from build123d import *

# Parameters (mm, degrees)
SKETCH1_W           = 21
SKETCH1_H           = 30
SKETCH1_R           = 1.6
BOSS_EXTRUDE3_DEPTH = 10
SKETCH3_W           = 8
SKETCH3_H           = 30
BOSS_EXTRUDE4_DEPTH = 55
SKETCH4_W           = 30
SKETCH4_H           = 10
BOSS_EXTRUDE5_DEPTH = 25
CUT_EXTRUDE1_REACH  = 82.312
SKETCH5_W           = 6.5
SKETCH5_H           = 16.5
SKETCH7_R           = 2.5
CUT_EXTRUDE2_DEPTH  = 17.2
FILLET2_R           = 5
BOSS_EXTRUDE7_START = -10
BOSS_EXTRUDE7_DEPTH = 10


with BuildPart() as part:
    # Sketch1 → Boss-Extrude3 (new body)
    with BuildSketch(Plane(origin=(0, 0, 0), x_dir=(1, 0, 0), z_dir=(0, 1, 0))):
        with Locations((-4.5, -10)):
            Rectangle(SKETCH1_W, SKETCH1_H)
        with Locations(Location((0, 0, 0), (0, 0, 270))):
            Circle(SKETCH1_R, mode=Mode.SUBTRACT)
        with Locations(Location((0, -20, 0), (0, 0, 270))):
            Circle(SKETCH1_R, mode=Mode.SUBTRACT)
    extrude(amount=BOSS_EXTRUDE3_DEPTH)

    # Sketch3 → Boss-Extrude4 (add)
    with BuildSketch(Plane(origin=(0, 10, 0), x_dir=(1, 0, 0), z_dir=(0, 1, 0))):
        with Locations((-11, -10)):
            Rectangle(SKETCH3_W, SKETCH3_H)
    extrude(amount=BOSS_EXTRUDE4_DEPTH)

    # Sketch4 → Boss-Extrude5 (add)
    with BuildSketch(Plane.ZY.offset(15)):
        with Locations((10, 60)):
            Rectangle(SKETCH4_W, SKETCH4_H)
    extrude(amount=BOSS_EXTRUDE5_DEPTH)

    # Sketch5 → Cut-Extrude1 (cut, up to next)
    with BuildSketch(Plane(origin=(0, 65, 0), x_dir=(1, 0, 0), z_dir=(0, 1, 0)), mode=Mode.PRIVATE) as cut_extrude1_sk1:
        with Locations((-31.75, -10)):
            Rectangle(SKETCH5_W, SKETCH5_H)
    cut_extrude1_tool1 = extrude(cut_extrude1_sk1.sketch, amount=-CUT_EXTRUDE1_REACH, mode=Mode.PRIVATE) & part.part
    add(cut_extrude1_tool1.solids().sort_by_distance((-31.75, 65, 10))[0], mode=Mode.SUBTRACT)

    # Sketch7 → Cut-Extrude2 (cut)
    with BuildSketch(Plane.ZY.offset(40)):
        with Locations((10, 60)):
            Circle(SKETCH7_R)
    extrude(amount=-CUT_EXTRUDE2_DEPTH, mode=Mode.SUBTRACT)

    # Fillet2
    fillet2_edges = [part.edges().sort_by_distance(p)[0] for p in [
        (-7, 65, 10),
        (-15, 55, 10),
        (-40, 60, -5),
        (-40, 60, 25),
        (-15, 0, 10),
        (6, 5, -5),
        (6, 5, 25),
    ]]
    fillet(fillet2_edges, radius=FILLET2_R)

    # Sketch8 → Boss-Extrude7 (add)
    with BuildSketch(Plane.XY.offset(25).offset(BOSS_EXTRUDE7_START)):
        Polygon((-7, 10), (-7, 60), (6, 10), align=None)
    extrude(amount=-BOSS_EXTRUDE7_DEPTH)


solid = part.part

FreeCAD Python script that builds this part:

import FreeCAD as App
import Part
import Sketcher


def edges_at(feature, points):
    """Names of the edges that pass closest to the given points."""
    edges = feature.Shape.Edges
    near = lambda p: min(range(len(edges)), key=lambda i: edges[i].distToShape(Part.Vertex(*p))[0])
    return sorted({f"Edge{near(p) + 1}" for p in points})


def add_polygon(sketch, points):
    """Adds a closed chain of lines whose ends are joined by coincident constraints."""
    first, n = sketch.GeometryCount, len(points)
    for a, b in zip(points, points[1:] + points[:1]):
        sketch.addGeometry(Part.LineSegment(App.Vector(*a, 0), App.Vector(*b, 0)), False)
    for i in range(n):
        sketch.addConstraint(Sketcher.Constraint("Coincident", first + i, 2, first + (i + 1) % n, 1))

doc = App.newDocument("Part")
body = doc.addObject("PartDesign::Body", "Body")

sketch1 = body.newObject("Sketcher::SketchObject", "Sketch")
sketch1.AttachmentSupport = (doc.getObject("XZ_Plane"), [""])
sketch1.MapMode = "FlatFace"
add_polygon(sketch1, [(-15, -5), (-15, 25), (6, 25), (6, -5)])
sketch1.addGeometry(Part.Circle(App.Vector(0, 20, 0), App.Vector(0, 0, 1), 1.6), False)
sketch1.addGeometry(Part.Circle(App.Vector(0, 0, 0), App.Vector(0, 0, 1), 1.6), False)
sketch1.addConstraint([
    Sketcher.Constraint("Vertical", 0),
    Sketcher.Constraint("Horizontal", 1),
    Sketcher.Constraint("Vertical", 2),
    Sketcher.Constraint("Horizontal", 3),
    Sketcher.Constraint("Coincident", 5, 3, -1, 1),
    Sketcher.Constraint("Equal", 4, 5),
    Sketcher.Constraint("PointOnObject", 4, 3, -2),
    Sketcher.Constraint("Diameter", 4, 3.2),
    Sketcher.Constraint("DistanceX", 1, 1, 1, 2, 21.0),
    Sketcher.Constraint("DistanceY", 0, 1, 0, 2, 30.0),
    Sketcher.Constraint("DistanceY", -1, 1, 4, 3, 20.0),
    Sketcher.Constraint("DistanceX", 0, 2, -1, 1, 15.0),
    Sketcher.Constraint("DistanceY", -1, 1, 0, 2, 25.0),
])
pad1 = body.newObject("PartDesign::Pad", "Pad")
pad1.Profile = sketch1
pad1.Length = 10
pad1.Reversed = True

sketch2 = body.newObject("Sketcher::SketchObject", "Sketch001")
sketch2.AttachmentSupport = (doc.getObject("XZ_Plane"), [""])
sketch2.MapMode = "FlatFace"
sketch2.AttachmentOffset = App.Placement(App.Vector(0, 0, -10), App.Rotation())
add_polygon(sketch2, [(-15, -5), (-15, 25), (-7, 25), (-7, -5)])
sketch2.addConstraint([
    Sketcher.Constraint("Vertical", 0),
    Sketcher.Constraint("Horizontal", 1),
    Sketcher.Constraint("Vertical", 2),
    Sketcher.Constraint("Horizontal", 3),
    Sketcher.Constraint("DistanceX", 1, 1, 1, 2, 8.0),
    Sketcher.Constraint("DistanceY", 0, 1, 0, 2, 30.0),
    Sketcher.Constraint("DistanceX", 0, 2, -1, 1, 15.0),
    Sketcher.Constraint("DistanceY", -1, 1, 0, 2, 25.0),
])
pad2 = body.newObject("PartDesign::Pad", "Pad001")
pad2.Profile = sketch2
pad2.Length = 55
pad2.Reversed = True

sketch3 = body.newObject("Sketcher::SketchObject", "Sketch002")
sketch3.AttachmentSupport = (doc.getObject("YZ_Plane"), [""])
sketch3.MapMode = "FlatFace"
sketch3.AttachmentOffset = App.Placement(App.Vector(0, 0, -15), App.Rotation())
add_polygon(sketch3, [(65, -5), (55, -5), (55, 25), (65, 25)])
sketch3.addConstraint([
    Sketcher.Constraint("Horizontal", 0),
    Sketcher.Constraint("Vertical", 1),
    Sketcher.Constraint("Horizontal", 2),
    Sketcher.Constraint("Vertical", 3),
    Sketcher.Constraint("DistanceX", 0, 2, 0, 1, 10.0),
    Sketcher.Constraint("DistanceY", 1, 1, 1, 2, 30.0),
    Sketcher.Constraint("DistanceX", -1, 1, 0, 2, 55.0),
    Sketcher.Constraint("DistanceY", 0, 2, -1, 1, 5.0),
])
pad3 = body.newObject("PartDesign::Pad", "Pad002")
pad3.Profile = sketch3
pad3.Length = 25
pad3.Reversed = True

sketch4 = body.newObject("Sketcher::SketchObject", "Sketch003")
sketch4.AttachmentSupport = (doc.getObject("XZ_Plane"), [""])
sketch4.MapMode = "FlatFace"
sketch4.AttachmentOffset = App.Placement(App.Vector(0, 0, -65), App.Rotation())
add_polygon(sketch4, [(-35, 2), (-35, 18), (-28, 18), (-28, 2)])
sketch4.addConstraint([
    Sketcher.Constraint("Vertical", 0),
    Sketcher.Constraint("Horizontal", 1),
    Sketcher.Constraint("Vertical", 2),
    Sketcher.Constraint("Horizontal", 3),
    Sketcher.Constraint("DistanceX", 1, 1, 1, 2, 6.5),
    Sketcher.Constraint("DistanceY", 0, 1, 0, 2, 16.5),
    Sketcher.Constraint("DistanceX", 0, 2, -1, 1, 35.0),
    Sketcher.Constraint("DistanceY", -1, 1, 0, 2, 18.25),
])
pocket1 = body.newObject("PartDesign::Pocket", "Pocket")
pocket1.Profile = sketch4
pocket1.Type = "UpToFirst"
pocket1.Reversed = True

sketch5 = body.newObject("Sketcher::SketchObject", "Sketch004")
sketch5.AttachmentSupport = (doc.getObject("YZ_Plane"), [""])
sketch5.MapMode = "FlatFace"
sketch5.AttachmentOffset = App.Placement(App.Vector(0, 0, -40), App.Rotation())
sketch5.addGeometry(Part.Circle(App.Vector(60, 10, 0), App.Vector(0, 0, 1), 2.5), False)
sketch5.addConstraint([
    Sketcher.Constraint("Diameter", 0, 5.0),
    Sketcher.Constraint("DistanceX", -1, 1, 0, 3, 60.0),
    Sketcher.Constraint("DistanceY", -1, 1, 0, 3, 10.0),
])
pocket2 = body.newObject("PartDesign::Pocket", "Pocket001")
pocket2.Profile = sketch5
pocket2.Length = 17.2
pocket2.Reversed = True
doc.recompute()

fillet = body.newObject("PartDesign::Fillet", "Fillet")
fillet.Base = (pocket2, edges_at(pocket2, [
    (-7, 65, 10),
    (-15, 55, 10),
    (-40, 60, -5),
    (-40, 60, 25),
    (-15, 0, 10),
    (6, 5, -5),
    (6, 5, 25),
]))
fillet.Radius = 5

sketch6 = body.newObject("Sketcher::SketchObject", "Sketch005")
sketch6.AttachmentSupport = (doc.getObject("XY_Plane"), [""])
sketch6.MapMode = "FlatFace"
sketch6.AttachmentOffset = App.Placement(App.Vector(0, 0, 15), App.Rotation())
add_polygon(sketch6, [(-7, 60), (-7, 10), (6, 10)])
sketch6.addConstraint([
    Sketcher.Constraint("Vertical", 0),
    Sketcher.Constraint("Horizontal", 1),
    Sketcher.Constraint("DistanceX", 1, 1, 1, 2, 13.0),
    Sketcher.Constraint("DistanceY", 0, 2, 0, 1, 50.0),
    Sketcher.Constraint("DistanceX", 0, 2, -1, 1, 7.0),
    Sketcher.Constraint("DistanceY", -1, 1, 0, 2, 10.0),
])
pad4 = body.newObject("PartDesign::Pad", "Pad003")
pad4.Profile = sketch6
pad4.Length = 10
pad4.Reversed = True

doc.recompute()
